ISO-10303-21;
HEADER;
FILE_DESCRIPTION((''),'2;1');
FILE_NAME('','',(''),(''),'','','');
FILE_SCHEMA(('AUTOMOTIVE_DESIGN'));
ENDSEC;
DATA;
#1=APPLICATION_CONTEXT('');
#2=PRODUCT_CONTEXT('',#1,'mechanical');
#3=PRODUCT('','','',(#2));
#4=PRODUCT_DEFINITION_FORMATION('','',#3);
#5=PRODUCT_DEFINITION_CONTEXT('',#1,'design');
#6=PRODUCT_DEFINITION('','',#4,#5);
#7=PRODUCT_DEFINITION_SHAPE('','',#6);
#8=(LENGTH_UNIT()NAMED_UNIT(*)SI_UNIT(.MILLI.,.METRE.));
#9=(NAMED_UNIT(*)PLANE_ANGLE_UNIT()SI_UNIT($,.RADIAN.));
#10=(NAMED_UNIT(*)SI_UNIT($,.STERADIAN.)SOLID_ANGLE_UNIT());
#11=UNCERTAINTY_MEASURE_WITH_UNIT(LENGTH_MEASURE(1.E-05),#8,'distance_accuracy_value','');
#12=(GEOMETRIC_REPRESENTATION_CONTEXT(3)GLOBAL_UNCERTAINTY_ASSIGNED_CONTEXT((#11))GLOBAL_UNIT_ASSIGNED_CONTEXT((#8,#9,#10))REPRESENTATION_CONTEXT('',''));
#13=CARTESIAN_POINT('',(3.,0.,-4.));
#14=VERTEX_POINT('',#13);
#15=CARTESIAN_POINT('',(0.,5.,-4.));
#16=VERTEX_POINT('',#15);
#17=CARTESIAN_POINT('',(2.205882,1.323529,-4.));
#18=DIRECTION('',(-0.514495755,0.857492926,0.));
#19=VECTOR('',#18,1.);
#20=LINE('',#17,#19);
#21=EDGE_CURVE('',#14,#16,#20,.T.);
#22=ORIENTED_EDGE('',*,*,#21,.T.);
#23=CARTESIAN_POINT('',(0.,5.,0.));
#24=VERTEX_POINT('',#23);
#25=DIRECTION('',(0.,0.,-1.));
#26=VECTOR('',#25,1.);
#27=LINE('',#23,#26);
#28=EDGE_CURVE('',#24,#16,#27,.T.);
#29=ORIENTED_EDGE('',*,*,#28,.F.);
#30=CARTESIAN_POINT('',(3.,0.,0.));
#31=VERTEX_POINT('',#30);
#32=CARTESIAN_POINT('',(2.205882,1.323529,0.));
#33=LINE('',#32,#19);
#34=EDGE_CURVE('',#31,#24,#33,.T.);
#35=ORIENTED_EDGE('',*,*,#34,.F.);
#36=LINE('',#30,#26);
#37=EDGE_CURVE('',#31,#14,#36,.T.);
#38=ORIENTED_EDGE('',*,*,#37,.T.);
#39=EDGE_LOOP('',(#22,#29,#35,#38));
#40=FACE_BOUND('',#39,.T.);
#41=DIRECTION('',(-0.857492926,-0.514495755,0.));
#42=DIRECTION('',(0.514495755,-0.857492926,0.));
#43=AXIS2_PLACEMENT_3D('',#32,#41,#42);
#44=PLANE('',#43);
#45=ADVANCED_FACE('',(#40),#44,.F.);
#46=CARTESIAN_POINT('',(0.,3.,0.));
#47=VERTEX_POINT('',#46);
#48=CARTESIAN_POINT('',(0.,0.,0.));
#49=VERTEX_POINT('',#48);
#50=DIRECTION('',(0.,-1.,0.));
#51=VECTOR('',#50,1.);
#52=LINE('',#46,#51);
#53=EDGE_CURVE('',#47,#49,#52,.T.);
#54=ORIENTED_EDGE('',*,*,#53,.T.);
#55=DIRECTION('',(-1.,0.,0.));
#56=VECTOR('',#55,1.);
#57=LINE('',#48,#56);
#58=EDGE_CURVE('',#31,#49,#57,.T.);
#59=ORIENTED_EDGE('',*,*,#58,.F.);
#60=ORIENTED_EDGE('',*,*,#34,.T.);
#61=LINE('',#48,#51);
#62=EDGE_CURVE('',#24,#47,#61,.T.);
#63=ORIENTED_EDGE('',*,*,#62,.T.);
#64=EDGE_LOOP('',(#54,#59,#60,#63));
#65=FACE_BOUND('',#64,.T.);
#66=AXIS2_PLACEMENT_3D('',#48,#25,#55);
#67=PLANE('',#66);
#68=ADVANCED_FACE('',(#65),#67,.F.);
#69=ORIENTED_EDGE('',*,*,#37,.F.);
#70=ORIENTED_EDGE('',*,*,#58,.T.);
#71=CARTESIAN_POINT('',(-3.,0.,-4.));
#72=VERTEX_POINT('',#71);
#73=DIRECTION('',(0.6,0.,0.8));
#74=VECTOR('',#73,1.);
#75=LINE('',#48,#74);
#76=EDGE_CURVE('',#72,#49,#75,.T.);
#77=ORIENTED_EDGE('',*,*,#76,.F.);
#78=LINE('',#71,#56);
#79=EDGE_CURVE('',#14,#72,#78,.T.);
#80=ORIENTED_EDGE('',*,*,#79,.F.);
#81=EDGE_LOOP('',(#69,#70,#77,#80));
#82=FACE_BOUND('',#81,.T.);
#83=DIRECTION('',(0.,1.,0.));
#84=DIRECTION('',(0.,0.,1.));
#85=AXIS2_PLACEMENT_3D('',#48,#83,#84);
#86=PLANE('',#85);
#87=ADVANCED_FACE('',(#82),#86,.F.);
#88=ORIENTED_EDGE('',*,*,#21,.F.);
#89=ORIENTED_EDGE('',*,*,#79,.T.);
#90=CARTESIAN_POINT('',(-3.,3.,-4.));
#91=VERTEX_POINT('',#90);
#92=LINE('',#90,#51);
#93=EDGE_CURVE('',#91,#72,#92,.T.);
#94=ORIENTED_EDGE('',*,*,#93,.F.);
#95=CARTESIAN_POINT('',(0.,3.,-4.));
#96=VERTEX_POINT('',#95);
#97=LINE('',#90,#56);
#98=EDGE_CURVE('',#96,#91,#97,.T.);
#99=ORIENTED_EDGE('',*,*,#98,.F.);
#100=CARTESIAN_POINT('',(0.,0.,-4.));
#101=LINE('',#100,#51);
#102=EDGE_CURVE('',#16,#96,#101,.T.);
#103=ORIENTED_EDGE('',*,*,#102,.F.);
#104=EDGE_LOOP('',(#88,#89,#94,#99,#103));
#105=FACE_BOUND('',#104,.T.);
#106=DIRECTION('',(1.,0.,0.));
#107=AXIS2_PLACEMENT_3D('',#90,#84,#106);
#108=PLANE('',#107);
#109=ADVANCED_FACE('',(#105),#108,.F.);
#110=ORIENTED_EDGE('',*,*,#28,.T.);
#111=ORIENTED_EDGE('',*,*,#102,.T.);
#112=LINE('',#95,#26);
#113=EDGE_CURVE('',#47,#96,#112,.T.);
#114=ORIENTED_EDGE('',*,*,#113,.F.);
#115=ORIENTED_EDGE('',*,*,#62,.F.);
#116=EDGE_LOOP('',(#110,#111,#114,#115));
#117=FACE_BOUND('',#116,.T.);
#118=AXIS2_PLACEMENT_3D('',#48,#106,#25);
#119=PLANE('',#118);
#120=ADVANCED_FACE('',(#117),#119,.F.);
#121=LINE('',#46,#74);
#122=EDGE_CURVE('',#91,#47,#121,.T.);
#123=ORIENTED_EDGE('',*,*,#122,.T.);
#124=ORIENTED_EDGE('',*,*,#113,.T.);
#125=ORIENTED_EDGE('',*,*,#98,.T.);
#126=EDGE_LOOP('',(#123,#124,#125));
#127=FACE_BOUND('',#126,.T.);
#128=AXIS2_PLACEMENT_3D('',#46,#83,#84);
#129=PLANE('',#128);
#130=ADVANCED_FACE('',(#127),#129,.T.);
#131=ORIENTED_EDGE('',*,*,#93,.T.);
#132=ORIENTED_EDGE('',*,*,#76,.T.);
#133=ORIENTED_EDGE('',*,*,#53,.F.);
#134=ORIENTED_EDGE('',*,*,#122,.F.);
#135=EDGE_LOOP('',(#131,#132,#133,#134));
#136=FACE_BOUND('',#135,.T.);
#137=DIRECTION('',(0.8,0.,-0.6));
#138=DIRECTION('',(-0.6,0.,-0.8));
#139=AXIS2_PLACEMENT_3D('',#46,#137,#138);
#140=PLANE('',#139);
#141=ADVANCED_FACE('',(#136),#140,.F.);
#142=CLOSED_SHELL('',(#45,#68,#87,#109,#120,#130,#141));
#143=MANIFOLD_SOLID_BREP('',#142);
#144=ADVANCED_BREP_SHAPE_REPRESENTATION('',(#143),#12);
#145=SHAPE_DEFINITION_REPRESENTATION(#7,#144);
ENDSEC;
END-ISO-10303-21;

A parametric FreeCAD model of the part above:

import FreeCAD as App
import Part
import Sketcher
from FreeCAD import Vector
Q = App.Units.Quantity

doc = App.newDocument("Part")
body = doc.addObject("PartDesign::Body", "Body")

# Sketch on XZ plane
sketch1 = body.newObject("Sketcher::SketchObject", "Sketch")
sketch1.AttachmentSupport = (doc.getObject("XZ_Plane"), [""])
sketch1.MapMode = "FlatFace"
sketch1.addGeometry([
    Part.LineSegment(Vector(-3, -4, 0), Vector(0, 0, 0)),
    Part.LineSegment(Vector(0, 0, 0), Vector(0, -4, 0)),
    Part.LineSegment(Vector(0, -4, 0), Vector(-3, -4, 0)),
], False)
sketch1.addConstraint([
    Sketcher.Constraint("Coincident", 0, 2, 1, 1),
    Sketcher.Constraint("Coincident", 1, 2, 2, 1),
    Sketcher.Constraint("Coincident", 2, 2, 0, 1),
    Sketcher.Constraint("Vertical", 1),
    Sketcher.Constraint("Horizontal", 2),
    Sketcher.Constraint("Coincident", 0, 2, -1, 1),
    Sketcher.Constraint("DistanceX", 2, 2, 2, 1, Q("3 mm")),
    Sketcher.Constraint("DistanceY", 1, 2, 1, 1, Q("4 mm")),
])
pad1 = body.newObject("PartDesign::Pad", "Pad")
pad1.Profile = sketch1
pad1.Length = 3
pad1.Reversed = True

# Sketch on XY plane
sketch2 = body.newObject("Sketcher::SketchObject", "Sketch001")
sketch2.AttachmentSupport = (doc.getObject("XY_Plane"), [""])
sketch2.MapMode = "FlatFace"
sketch2.AttachmentOffset = App.Placement(Vector(0, 0, -4), App.Rotation())
sketch2.addGeometry([
    Part.LineSegment(Vector(0, 5, 0), Vector(3, 0, 0)),
    Part.LineSegment(Vector(3, 0, 0), Vector(0, 0, 0)),
    Part.LineSegment(Vector(0, 0, 0), Vector(0, 5, 0)),
], False)
sketch2.addConstraint([
    Sketcher.Constraint("Coincident", 0, 2, 1, 1),
    Sketcher.Constraint("Coincident", 1, 2, 2, 1),
    Sketcher.Constraint("Coincident", 2, 2, 0, 1),
    Sketcher.Constraint("Horizontal", 1),
    Sketcher.Constraint("Vertical", 2),
    Sketcher.Constraint("Coincident", 1, 2, -1, 1),
    Sketcher.Constraint("DistanceX", 1, 2, 1, 1, Q("3 mm")),
    Sketcher.Constraint("DistanceY", 2, 1, 2, 2, Q("5 mm")),
])
pad2 = body.newObject("PartDesign::Pad", "Pad001")
pad2.Profile = sketch2
pad2.Length = 4

doc.recompute()
